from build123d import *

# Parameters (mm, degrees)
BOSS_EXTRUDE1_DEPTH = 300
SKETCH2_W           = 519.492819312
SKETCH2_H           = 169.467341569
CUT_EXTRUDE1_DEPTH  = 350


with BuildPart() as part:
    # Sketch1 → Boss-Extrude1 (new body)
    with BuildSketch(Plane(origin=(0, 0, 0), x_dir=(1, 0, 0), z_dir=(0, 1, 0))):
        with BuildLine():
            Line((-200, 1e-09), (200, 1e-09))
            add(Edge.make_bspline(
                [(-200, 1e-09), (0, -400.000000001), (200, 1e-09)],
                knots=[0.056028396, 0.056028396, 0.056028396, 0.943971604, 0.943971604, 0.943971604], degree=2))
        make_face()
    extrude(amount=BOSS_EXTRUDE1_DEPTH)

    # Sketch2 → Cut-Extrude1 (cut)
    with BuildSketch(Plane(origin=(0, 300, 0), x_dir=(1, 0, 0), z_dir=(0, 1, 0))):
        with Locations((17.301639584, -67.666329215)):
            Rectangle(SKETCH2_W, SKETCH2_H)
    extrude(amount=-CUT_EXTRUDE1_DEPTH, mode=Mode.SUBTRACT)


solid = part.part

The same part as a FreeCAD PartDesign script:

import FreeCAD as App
import Part
import Sketcher

V = App.Vector

doc = App.newDocument("Part")
body = doc.addObject("PartDesign::Body", "Body")

sketch1 = body.newObject("Sketcher::SketchObject", "Sketch")
sketch1.AttachmentSupport = (doc.getObject("XZ_Plane"), [""])
sketch1.MapMode = "FlatFace"
sketch1.addGeometry([
    Part.LineSegment(V(200, 0, 0), V(-200, 0, 0)),
    Part.BSplineCurve([V(-200, 0, 0), V(0, 400, 0), V(200, 0, 0)], [3, 3], [0.056028396, 0.943971604], False, 2, [1, 1, 1], False),
], False)
sketch1.addConstraint([
    Sketcher.Constraint("Block", 1),
    Sketcher.Constraint("Coincident", 0, 1, 1, 2),
    Sketcher.Constraint("Coincident", 1, 1, 0, 2),
])
pad1 = body.newObject("PartDesign::Pad", "Pad")
pad1.Profile = sketch1
pad1.Length = 300
pad1.Reversed = True

sketch2 = body.newObject("Sketcher::SketchObject", "Sketch001")
sketch2.AttachmentSupport = (doc.getObject("XZ_Plane"), [""])
sketch2.MapMode = "FlatFace"
sketch2.AttachmentOffset = App.Placement(V(0, 0, -300), App.Rotation())
sketch2.addGeometry([
    Part.LineSegment(V(-242.44477, -17.067342, 0), V(-242.44477, 152.4, 0)),
    Part.LineSegment(V(-242.44477, 152.4, 0), V(277.048049, 152.4, 0)),
    Part.LineSegment(V(277.048049, 152.4, 0), V(277.048049, -17.067342, 0)),
    Part.LineSegment(V(277.048049, -17.067342, 0), V(-242.44477, -17.067342, 0)),
], False)
sketch2.addConstraint([
    Sketcher.Constraint("Coincident", 0, 2, 1, 1),
    Sketcher.Constraint("Coincident", 1, 2, 2, 1),
    Sketcher.Constraint("Coincident", 2, 2, 3, 1),
    Sketcher.Constraint("Coincident", 3, 2, 0, 1),
    Sketcher.Constraint("Vertical", 0),
    Sketcher.Constraint("Horizontal", 1),
    Sketcher.Constraint("Vertical", 2),
    Sketcher.Constraint("Horizontal", 3),
    Sketcher.Constraint("DistanceY", -1, 1, 0, 2, 152.4),
    Sketcher.Constraint("DistanceX", 1, 1, 1, 2, 519.492819),
    Sketcher.Constraint("DistanceY", 0, 1, 0, 2, 169.467342),
    Sketcher.Constraint("DistanceX", 0, 2, -1, 1, 242.44477),
])
pocket1 = body.newObject("PartDesign::Pocket", "Pocket")
pocket1.Profile = sketch2
pocket1.Length = 350
pocket1.Reversed = True

doc.recompute()
